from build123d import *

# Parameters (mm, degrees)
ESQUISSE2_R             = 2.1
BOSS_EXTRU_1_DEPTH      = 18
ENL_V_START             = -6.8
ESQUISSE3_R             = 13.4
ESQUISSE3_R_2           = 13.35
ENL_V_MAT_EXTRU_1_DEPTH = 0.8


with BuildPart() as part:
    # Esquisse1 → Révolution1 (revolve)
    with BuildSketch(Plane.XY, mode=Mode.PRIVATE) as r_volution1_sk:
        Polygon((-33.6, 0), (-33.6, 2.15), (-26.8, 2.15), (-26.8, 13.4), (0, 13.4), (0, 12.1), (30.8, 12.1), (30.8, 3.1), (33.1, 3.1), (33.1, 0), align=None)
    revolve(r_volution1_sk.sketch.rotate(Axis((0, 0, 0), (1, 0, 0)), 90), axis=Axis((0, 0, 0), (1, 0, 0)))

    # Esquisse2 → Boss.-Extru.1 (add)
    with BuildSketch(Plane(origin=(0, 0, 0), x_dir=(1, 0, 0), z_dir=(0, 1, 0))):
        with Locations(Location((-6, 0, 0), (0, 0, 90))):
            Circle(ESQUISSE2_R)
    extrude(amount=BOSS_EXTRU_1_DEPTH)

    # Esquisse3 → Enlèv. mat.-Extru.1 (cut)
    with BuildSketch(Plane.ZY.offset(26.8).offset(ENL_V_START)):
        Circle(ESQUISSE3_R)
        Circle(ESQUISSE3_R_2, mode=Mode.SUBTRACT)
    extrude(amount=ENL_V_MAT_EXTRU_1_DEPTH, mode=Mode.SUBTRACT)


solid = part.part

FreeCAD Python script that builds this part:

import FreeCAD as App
import Part
import Sketcher

V = App.Vector
Q = App.Units.Quantity


def add_polygon(sketch, points):
    """Adds a closed chain of lines whose ends are joined by coincident constraints."""
    first, n = sketch.GeometryCount, len(points)
    for a, b in zip(points, points[1:] + points[:1]):
        sketch.addGeometry(Part.LineSegment(App.Vector(*a, 0), App.Vector(*b, 0)), False)
    for i in range(n):
        sketch.addConstraint(Sketcher.Constraint("Coincident", first + i, 2, first + (i + 1) % n, 1))

doc = App.newDocument("Part")
body = doc.addObject("PartDesign::Body", "Body")

# Sketch on XY plane
sketch1 = doc.addObject("Sketcher::SketchObject", "Sketch")
body.addObject(sketch1)
sketch1.AttachmentSupport = (doc.XY_Plane, [""])
sketch1.MapMode = "FlatFace"
add_polygon(sketch1, [(-33.6, 2.1), (-33.6, 0), (33.1, 0), (33.1, 3.1), (30.8, 3.1), (30.8, 12.1), (0, 12.1), (0, 13.4), (-26.8, 13.4), (-26.8, 2.1)])  # lines 0-9
sketch1.addConstraint([
    Sketcher.Constraint("Vertical", 0),
    Sketcher.Constraint("Horizontal", 1),
    Sketcher.Constraint("Vertical", 2),
    Sketcher.Constraint("Horizontal", 3),
    Sketcher.Constraint("Vertical", 4),
    Sketcher.Constraint("Horizontal", 5),
    Sketcher.Constraint("Vertical", 6),
    Sketcher.Constraint("Horizontal", 7),
    Sketcher.Constraint("Vertical", 8),
    Sketcher.Constraint("Horizontal", 9),
    Sketcher.Constraint("PointOnObject", 0, 2, -1),
    Sketcher.Constraint("PointOnObject", 5, 2, -2),
    Sketcher.Constraint("DistanceY", 4, 1, 4, 2, Q("9 mm")),
    Sketcher.Constraint("DistanceX", 1, 1, 1, 2, Q("66.7 mm")),
    Sketcher.Constraint("DistanceX", 3, 2, 3, 1, Q("2.3 mm")),
    Sketcher.Constraint("DistanceX", 5, 2, 5, 1, Q("30.8 mm")),
    Sketcher.Constraint("DistanceX", 7, 2, 7, 1, Q("26.8 mm")),
    Sketcher.Constraint("DistanceY", 2, 1, 2, 2, Q("3.1 mm")),
    Sketcher.Constraint("DistanceY", 6, 1, 6, 2, Q("1.3 mm")),
    Sketcher.Constraint("DistanceY", 0, 2, 0, 1, Q("2.15 mm")),
])
revolution = doc.addObject("PartDesign::Revolution", "Revolution")
body.addObject(revolution)
revolution.Profile = sketch1
revolution.ReferenceAxis = (sketch1, ["H_Axis"])
revolution.Angle = 360

# Sketch on XZ plane
sketch2 = doc.addObject("Sketcher::SketchObject", "Sketch001")
body.addObject(sketch2)
sketch2.AttachmentSupport = (doc.XZ_Plane, [""])
sketch2.MapMode = "FlatFace"
sketch2.addGeometry(Part.Circle(V(-6, 0, 0), V(0, 0, 1), 2.1), False)
sketch2.addConstraint([
    Sketcher.Constraint("PointOnObject", 0, 3, -1),
    Sketcher.Constraint("Diameter", 0, Q("4.2 mm")),
    Sketcher.Constraint("DistanceX", 0, 3, -1, 1, Q("6 mm")),
])
pad1 = doc.addObject("PartDesign::Pad", "Pad")
body.addObject(pad1)
pad1.Profile = sketch2
pad1.Length = 18
pad1.Reversed = True

# Sketch on YZ plane
sketch3 = doc.addObject("Sketcher::SketchObject", "Sketch002")
body.addObject(sketch3)
sketch3.AttachmentSupport = (doc.YZ_Plane, [""])
sketch3.MapMode = "FlatFace"
sketch3.AttachmentOffset = App.Placement(V(0, 0, -20), App.Rotation())
sketch3.addGeometry([
    Part.Circle(V(0, 0, 0), V(0, 0, 1), 13),
    Part.Circle(V(0, 0, 0), V(0, 0, 1), 13),
], False)
sketch3.addConstraint([
    Sketcher.Constraint("Coincident", 0, 3, -1, 1),
    Sketcher.Constraint("Coincident", 1, 3, -1, 1),
    Sketcher.Constraint("Diameter", 0, Q("26.8 mm")),
    Sketcher.Constraint("Diameter", 1, Q("26.7 mm")),
])
pocket1 = doc.addObject("PartDesign::Pocket", "Pocket")
body.addObject(pocket1)
pocket1.Profile = sketch3
pocket1.Length = 0.8

doc.recompute()
